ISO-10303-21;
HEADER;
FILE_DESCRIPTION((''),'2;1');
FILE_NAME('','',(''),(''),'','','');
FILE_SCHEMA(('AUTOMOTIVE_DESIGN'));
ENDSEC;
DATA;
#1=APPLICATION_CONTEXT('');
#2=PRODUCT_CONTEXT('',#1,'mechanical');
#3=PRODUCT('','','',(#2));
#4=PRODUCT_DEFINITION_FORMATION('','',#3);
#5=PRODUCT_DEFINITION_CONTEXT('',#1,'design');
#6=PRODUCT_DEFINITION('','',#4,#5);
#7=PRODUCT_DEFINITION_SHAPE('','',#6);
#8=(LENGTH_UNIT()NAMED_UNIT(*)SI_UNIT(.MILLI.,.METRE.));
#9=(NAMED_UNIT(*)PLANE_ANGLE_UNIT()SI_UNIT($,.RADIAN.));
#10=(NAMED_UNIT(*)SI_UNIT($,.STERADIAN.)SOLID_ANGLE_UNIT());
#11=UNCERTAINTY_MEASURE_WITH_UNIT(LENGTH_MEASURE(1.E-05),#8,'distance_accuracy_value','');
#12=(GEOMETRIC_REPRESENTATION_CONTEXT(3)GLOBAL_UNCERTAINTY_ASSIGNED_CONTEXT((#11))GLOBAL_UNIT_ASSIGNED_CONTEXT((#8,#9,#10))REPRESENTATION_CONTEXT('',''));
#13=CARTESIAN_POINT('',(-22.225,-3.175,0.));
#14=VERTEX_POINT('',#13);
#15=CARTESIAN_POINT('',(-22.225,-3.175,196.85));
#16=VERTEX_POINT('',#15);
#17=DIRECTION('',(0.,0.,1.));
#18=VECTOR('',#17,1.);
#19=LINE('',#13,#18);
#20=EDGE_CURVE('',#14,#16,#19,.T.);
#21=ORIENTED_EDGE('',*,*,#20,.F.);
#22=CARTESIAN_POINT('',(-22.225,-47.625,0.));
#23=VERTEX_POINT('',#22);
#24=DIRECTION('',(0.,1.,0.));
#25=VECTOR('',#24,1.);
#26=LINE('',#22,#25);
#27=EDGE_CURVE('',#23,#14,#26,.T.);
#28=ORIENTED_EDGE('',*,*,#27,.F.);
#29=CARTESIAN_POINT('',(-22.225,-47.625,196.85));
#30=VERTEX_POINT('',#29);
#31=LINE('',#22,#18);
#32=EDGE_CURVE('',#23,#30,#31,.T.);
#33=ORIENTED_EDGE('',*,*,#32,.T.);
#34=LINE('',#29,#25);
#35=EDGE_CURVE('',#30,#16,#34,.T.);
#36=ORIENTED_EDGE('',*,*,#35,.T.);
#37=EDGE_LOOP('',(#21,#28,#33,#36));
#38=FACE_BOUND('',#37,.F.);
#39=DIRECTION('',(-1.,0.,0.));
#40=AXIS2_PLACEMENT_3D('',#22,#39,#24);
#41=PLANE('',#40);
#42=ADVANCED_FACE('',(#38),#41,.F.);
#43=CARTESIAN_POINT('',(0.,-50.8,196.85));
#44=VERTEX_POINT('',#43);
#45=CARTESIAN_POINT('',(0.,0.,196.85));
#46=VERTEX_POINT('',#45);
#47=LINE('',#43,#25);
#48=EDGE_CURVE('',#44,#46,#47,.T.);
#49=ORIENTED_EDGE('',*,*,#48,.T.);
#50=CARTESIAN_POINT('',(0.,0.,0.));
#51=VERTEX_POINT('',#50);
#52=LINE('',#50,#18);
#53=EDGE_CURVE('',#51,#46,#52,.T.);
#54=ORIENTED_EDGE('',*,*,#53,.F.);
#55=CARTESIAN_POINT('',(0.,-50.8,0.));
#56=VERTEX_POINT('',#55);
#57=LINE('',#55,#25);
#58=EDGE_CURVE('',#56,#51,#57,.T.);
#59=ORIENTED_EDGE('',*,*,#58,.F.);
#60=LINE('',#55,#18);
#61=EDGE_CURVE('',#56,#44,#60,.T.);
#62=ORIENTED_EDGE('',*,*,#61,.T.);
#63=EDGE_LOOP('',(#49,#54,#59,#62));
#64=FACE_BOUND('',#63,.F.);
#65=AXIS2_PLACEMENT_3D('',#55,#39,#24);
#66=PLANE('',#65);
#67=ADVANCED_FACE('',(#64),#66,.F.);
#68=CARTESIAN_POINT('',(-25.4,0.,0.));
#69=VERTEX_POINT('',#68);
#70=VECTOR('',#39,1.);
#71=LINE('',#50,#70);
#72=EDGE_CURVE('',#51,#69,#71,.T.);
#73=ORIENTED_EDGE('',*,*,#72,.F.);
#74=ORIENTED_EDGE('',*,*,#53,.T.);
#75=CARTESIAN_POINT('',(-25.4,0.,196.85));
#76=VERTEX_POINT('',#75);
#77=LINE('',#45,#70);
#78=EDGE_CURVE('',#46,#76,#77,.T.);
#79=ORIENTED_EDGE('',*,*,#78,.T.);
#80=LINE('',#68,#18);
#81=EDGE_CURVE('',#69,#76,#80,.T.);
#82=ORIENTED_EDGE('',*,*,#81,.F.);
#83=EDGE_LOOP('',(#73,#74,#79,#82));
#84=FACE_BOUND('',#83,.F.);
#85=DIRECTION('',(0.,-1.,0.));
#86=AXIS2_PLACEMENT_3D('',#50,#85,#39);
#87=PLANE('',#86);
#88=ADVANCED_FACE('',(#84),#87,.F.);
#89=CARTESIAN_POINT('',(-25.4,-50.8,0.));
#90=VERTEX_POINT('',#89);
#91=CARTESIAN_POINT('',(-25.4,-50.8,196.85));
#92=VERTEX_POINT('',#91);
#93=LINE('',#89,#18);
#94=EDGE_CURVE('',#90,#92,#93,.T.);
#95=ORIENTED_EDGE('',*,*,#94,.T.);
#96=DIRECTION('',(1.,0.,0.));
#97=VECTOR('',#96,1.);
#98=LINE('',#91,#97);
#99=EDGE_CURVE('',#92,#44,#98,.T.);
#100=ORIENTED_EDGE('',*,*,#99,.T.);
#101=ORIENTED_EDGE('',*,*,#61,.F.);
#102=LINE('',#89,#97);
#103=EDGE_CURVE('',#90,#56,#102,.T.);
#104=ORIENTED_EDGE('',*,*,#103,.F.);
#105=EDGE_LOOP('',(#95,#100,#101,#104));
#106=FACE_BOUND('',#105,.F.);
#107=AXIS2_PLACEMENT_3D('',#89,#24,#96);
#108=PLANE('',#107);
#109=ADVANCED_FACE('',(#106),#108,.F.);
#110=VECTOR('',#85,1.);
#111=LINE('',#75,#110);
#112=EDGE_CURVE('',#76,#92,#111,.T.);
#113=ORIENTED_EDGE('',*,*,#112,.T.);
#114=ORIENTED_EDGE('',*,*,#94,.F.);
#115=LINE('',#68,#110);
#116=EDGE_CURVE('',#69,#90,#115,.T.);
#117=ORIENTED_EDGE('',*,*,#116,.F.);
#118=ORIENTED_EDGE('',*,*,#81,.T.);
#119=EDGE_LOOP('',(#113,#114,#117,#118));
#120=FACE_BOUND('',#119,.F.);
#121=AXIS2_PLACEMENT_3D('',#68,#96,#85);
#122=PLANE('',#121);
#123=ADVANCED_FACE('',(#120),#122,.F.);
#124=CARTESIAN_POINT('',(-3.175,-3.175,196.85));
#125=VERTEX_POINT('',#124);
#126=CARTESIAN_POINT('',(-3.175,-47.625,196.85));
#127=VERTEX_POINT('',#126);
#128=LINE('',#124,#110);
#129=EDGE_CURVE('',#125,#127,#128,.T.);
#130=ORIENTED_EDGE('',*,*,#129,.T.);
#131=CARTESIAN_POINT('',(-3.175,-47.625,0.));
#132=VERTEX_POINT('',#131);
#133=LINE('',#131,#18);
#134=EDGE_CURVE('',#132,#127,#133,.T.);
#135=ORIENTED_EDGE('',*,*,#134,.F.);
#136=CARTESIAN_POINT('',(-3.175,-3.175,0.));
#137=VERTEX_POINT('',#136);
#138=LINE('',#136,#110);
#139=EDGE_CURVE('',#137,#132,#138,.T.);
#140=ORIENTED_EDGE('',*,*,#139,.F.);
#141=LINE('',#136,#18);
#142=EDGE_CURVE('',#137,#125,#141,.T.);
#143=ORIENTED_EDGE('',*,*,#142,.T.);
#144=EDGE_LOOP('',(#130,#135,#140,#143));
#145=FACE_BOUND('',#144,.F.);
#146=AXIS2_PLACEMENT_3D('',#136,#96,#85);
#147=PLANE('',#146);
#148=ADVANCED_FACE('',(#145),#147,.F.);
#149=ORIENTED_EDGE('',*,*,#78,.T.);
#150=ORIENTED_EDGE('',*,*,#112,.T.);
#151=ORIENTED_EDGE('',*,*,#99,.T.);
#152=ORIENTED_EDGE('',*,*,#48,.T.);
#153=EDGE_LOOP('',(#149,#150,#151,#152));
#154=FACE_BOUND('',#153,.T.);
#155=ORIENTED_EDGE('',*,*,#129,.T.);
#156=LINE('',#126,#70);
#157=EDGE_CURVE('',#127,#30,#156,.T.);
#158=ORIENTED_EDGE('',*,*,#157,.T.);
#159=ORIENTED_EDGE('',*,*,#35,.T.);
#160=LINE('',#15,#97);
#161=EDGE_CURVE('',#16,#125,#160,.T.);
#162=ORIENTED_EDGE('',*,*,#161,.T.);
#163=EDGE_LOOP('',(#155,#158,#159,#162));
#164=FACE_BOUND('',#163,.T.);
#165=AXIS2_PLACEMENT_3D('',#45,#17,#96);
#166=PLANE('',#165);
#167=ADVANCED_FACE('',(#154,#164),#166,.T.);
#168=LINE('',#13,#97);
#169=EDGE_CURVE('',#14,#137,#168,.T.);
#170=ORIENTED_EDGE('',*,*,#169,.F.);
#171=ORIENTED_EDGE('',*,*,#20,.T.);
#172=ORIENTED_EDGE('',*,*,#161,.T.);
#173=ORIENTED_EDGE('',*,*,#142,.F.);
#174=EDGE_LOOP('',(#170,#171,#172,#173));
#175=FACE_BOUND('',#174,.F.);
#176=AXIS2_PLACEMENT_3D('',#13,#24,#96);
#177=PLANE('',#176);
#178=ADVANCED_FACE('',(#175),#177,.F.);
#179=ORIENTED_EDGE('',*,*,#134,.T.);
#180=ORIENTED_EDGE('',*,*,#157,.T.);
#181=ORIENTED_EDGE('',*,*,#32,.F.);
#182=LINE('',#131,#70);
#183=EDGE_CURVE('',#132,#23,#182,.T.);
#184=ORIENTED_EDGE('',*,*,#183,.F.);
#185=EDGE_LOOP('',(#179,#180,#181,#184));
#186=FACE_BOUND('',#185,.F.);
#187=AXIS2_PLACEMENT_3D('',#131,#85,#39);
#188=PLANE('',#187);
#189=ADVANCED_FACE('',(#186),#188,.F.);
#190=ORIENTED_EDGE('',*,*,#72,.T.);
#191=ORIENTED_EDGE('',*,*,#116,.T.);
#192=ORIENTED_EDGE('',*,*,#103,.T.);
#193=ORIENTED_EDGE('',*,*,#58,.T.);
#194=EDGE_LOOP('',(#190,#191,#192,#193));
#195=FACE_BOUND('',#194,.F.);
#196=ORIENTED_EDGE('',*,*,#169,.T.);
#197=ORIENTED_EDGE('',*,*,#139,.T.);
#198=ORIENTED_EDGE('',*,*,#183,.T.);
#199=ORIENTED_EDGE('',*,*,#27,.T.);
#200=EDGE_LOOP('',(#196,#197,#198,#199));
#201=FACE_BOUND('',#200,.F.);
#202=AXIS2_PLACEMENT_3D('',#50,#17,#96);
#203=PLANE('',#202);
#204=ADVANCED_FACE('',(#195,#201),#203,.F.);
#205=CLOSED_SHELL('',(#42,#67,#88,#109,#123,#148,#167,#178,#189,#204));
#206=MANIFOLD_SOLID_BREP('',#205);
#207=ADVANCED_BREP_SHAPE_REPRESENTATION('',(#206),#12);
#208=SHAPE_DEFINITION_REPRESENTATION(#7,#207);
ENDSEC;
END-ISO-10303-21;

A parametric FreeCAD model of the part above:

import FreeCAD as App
import Part
import Sketcher
from FreeCAD import Vector
Q = App.Units.Quantity

doc = App.newDocument("Part")
body = doc.addObject("PartDesign::Body", "Body")

# Sketch on XY plane
sketch1 = body.newObject("Sketcher::SketchObject", "Sketch")
sketch1.AttachmentSupport = (doc.getObject("XY_Plane"), [""])
sketch1.MapMode = "FlatFace"
sketch1.addGeometry([
    Part.LineSegment(Vector(0, -50.8, 0), Vector(0, 0, 0)),  # 0
    Part.LineSegment(Vector(0, 0, 0), Vector(-25.4, 0, 0)),  # 1
    Part.LineSegment(Vector(-25.4, 0, 0), Vector(-25.4, -50.8, 0)),  # 2
    Part.LineSegment(Vector(-25.4, -50.8, 0), Vector(0, -50.8, 0)),  # 3
    Part.LineSegment(Vector(-22.225, -47.625, 0), Vector(-22.225, -3.175, 0)),  # 4
    Part.LineSegment(Vector(-22.225, -3.175, 0), Vector(-3.175, -3.175, 0)),  # 5
    Part.LineSegment(Vector(-3.175, -3.175, 0), Vector(-3.175, -47.625, 0)),  # 6
    Part.LineSegment(Vector(-3.175, -47.625, 0), Vector(-22.225, -47.625, 0)),  # 7
], False)
sketch1.addConstraint([
    Sketcher.Constraint("Coincident", 0, 2, 1, 1),
    Sketcher.Constraint("Coincident", 1, 2, 2, 1),
    Sketcher.Constraint("Coincident", 2, 2, 3, 1),
    Sketcher.Constraint("Coincident", 3, 2, 0, 1),
    Sketcher.Constraint("Coincident", 4, 2, 5, 1),
    Sketcher.Constraint("Coincident", 5, 2, 6, 1),
    Sketcher.Constraint("Coincident", 6, 2, 7, 1),
    Sketcher.Constraint("Coincident", 7, 2, 4, 1),
    Sketcher.Constraint("Vertical", 0),
    Sketcher.Constraint("Horizontal", 1),
    Sketcher.Constraint("Vertical", 2),
    Sketcher.Constraint("Horizontal", 3),
    Sketcher.Constraint("Vertical", 4),
    Sketcher.Constraint("Horizontal", 5),
    Sketcher.Constraint("Vertical", 6),
    Sketcher.Constraint("Horizontal", 7),
    Sketcher.Constraint("Coincident", 0, 2, -1, 1),
    Sketcher.Constraint("DistanceX", 1, 2, 1, 1, Q("1 in")),
    Sketcher.Constraint("DistanceY", 0, 1, 0, 2, Q("2 in")),
    Sketcher.Constraint("DistanceY", 4, 2, -1, 1, Q("0.125 in")),
    Sketcher.Constraint("DistanceX", 5, 2, -1, 1, Q("0.125 in")),
    Sketcher.Constraint("DistanceX", 1, 2, 4, 2, Q("0.125 in")),
    Sketcher.Constraint("DistanceY", 3, 2, 6, 2, Q("0.125 in")),
])
pad1 = body.newObject("PartDesign::Pad", "Pad")
pad1.Profile = sketch1
pad1.Length = Q("7.75 in")

doc.recompute()
